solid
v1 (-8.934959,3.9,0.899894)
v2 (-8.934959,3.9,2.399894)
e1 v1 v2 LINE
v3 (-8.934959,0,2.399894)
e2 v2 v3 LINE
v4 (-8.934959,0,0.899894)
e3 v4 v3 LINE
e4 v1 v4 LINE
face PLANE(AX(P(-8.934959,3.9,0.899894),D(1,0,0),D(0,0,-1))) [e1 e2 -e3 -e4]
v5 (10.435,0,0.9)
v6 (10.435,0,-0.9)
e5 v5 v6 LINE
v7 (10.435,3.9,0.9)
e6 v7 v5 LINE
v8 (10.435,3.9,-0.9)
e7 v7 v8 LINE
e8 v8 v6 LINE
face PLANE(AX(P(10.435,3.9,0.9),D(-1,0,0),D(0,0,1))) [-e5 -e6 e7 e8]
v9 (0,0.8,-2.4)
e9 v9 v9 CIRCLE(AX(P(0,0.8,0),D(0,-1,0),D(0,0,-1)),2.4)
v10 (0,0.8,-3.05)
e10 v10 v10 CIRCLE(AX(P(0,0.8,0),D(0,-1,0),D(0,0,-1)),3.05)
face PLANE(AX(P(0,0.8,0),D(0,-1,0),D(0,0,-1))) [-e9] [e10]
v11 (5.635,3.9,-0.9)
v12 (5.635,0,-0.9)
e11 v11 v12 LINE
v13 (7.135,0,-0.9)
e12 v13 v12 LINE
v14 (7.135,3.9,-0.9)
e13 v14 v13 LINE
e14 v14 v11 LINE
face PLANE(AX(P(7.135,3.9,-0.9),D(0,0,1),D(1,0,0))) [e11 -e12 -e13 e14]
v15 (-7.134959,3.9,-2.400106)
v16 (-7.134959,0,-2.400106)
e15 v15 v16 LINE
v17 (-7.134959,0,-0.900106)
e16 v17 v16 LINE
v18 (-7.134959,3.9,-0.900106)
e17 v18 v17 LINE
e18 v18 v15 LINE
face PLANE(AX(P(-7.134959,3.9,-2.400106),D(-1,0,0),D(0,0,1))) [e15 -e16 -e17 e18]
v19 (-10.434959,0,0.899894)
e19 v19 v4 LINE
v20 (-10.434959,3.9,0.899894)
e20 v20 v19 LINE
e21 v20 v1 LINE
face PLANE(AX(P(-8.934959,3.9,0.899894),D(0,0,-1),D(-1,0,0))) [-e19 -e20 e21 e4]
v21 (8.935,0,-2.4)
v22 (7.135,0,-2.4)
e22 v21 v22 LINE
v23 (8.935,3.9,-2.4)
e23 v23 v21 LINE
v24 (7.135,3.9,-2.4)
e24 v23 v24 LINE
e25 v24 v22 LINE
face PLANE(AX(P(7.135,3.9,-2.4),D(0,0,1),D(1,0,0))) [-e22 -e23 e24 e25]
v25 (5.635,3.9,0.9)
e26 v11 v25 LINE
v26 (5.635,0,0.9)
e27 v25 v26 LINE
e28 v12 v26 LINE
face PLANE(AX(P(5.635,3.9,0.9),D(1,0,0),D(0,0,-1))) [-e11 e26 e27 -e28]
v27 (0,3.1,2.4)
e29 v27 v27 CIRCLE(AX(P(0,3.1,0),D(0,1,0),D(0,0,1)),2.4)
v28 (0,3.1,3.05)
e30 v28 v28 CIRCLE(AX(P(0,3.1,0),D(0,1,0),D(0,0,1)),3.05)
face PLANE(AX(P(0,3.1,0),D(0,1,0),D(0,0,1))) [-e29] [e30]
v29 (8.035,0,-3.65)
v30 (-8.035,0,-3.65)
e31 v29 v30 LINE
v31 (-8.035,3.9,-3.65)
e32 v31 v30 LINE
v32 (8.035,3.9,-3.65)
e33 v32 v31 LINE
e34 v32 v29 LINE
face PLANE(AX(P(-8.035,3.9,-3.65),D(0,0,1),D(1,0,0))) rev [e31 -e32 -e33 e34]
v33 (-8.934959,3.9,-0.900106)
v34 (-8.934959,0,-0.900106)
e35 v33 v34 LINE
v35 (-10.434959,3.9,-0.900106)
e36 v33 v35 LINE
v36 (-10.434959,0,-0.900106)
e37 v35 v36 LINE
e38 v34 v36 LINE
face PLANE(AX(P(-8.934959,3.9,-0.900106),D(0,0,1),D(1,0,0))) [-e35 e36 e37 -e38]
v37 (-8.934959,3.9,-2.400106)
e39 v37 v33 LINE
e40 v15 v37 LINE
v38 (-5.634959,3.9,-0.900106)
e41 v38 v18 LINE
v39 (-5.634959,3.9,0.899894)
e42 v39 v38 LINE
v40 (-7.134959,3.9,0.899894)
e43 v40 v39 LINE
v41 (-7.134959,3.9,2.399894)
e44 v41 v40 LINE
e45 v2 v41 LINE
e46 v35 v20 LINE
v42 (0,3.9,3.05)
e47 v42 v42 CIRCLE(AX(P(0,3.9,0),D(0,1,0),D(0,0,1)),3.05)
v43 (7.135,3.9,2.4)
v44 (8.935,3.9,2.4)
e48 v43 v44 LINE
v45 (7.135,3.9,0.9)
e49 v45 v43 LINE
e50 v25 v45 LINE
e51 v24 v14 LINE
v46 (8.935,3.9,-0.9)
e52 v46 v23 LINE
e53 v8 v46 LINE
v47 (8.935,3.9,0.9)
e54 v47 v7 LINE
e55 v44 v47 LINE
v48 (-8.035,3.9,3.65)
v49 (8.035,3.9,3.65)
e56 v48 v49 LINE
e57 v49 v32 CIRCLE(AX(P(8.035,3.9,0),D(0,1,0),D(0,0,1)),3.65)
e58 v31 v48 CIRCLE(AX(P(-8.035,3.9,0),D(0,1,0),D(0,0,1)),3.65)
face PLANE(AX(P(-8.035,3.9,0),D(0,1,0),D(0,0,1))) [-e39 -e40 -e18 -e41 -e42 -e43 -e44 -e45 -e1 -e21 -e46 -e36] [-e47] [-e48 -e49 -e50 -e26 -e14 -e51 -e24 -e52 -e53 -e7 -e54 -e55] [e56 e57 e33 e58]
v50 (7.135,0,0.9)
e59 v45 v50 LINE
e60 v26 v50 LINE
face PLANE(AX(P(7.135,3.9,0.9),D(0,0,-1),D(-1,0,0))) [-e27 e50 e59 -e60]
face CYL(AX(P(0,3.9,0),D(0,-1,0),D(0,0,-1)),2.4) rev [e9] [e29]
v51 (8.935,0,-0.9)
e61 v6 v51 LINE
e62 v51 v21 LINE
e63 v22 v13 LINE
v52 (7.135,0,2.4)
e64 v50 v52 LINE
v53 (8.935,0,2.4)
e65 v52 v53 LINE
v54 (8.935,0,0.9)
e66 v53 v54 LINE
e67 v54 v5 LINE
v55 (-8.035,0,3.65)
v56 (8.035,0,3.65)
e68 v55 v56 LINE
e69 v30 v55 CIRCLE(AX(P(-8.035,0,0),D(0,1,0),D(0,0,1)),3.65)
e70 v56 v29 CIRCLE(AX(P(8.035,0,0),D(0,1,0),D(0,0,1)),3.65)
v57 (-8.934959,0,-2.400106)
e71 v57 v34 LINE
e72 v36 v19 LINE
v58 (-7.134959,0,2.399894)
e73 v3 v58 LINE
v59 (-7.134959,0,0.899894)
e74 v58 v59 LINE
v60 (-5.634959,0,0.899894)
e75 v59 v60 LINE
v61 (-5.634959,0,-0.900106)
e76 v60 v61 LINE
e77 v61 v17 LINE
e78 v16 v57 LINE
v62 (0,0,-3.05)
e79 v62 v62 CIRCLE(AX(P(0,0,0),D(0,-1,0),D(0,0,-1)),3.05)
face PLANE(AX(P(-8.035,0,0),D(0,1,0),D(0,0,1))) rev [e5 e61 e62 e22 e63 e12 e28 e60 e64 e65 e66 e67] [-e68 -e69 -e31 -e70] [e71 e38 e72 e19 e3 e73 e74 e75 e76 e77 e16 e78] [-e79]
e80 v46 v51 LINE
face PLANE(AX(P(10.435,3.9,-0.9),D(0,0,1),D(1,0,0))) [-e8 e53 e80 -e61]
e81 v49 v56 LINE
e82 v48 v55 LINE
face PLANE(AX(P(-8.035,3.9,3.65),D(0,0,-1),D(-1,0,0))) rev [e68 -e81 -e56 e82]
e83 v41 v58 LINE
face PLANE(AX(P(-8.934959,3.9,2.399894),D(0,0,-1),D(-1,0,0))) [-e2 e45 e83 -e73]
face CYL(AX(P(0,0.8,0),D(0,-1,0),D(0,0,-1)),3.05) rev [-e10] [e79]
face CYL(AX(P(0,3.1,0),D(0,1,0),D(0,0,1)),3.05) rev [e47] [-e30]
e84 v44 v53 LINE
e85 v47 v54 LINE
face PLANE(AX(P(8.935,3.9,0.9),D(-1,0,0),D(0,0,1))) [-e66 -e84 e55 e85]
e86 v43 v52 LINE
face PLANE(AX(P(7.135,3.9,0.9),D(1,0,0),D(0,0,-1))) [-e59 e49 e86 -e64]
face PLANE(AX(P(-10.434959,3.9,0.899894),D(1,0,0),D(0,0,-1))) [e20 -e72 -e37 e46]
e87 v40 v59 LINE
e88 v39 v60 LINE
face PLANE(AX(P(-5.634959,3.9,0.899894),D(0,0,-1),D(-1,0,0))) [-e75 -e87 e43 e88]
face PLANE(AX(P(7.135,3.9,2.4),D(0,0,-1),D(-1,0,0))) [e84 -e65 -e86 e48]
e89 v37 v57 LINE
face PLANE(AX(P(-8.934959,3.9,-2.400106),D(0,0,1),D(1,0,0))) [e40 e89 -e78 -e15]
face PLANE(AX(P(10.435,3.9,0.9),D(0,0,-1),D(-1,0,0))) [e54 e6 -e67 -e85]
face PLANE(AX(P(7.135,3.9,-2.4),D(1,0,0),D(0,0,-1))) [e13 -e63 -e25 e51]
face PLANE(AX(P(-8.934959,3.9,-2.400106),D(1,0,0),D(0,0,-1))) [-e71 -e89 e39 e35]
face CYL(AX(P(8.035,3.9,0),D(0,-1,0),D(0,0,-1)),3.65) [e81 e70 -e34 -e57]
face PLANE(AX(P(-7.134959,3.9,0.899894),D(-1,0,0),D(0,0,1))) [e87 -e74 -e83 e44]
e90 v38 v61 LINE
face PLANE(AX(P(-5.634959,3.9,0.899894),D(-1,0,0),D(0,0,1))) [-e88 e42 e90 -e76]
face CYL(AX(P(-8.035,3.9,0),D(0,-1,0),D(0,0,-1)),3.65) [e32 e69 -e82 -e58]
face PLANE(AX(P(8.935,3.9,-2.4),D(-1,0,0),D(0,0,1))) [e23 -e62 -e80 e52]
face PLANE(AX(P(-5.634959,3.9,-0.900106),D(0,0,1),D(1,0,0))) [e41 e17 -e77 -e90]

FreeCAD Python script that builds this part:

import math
import FreeCAD as App
import Part
import Sketcher
from FreeCAD import Vector

doc = App.newDocument("Part")
body = doc.addObject("PartDesign::Body", "Body")

# Sketch on XZ plane
sketch1 = body.newObject("Sketcher::SketchObject", "Sketch")
sketch1.AttachmentSupport = (doc.getObject("XZ_Plane"), [""])
sketch1.MapMode = "FlatFace"
sketch1.addGeometry([
    Part.LineSegment(Vector(8, -3.6, 0), Vector(-8, -3.6, 0)),  # 0
    Part.ArcOfCircle(Part.Circle(Vector(-8, 0, 0), Vector(0, 0, 1), 3.6), math.radians(90), math.radians(270)),  # 1
    Part.LineSegment(Vector(-8, 3.6, 0), Vector(8, 3.6, 0)),  # 2
    Part.ArcOfCircle(Part.Circle(Vector(8, 0, 0), Vector(0, 0, 1), 3.6), math.radians(-90), math.radians(90)),  # 3
    Part.LineSegment(Vector(7.1, -2.4, 0), Vector(8.9, -2.4, 0)),  # 4
    Part.LineSegment(Vector(8.9, -2.4, 0), Vector(8.9, -0.9, 0)),  # 5
    Part.LineSegment(Vector(8.9, -0.9, 0), Vector(10.4, -0.9, 0)),  # 6
    Part.LineSegment(Vector(10.4, -0.9, 0), Vector(10.4, 0.9, 0)),  # 7
    Part.LineSegment(Vector(10.4, 0.9, 0), Vector(8.9, 0.9, 0)),  # 8
    Part.LineSegment(Vector(8.9, 0.9, 0), Vector(8.9, 2.4, 0)),  # 9
    Part.LineSegment(Vector(8.9, 2.4, 0), Vector(7.1, 2.4, 0)),  # 10
    Part.LineSegment(Vector(7.1, 2.4, 0), Vector(7.1, 0.9, 0)),  # 11
    Part.LineSegment(Vector(7.1, 0.9, 0), Vector(5.6, 0.9, 0)),  # 12
    Part.LineSegment(Vector(5.6, 0.9, 0), Vector(5.6, -0.9, 0)),  # 13
    Part.LineSegment(Vector(5.6, -0.9, 0), Vector(7.1, -0.9, 0)),  # 14
    Part.LineSegment(Vector(7.1, -0.9, 0), Vector(7.1, -2.4, 0)),  # 15
    Part.Circle(Vector(0, 0, 0), Vector(0, 0, 1), 2.4),  # 16
    Part.LineSegment(Vector(-8.9, -2.4, 0), Vector(-7.1, -2.4, 0)),  # 17
    Part.LineSegment(Vector(-7.1, -2.4, 0), Vector(-7.1, -0.9, 0)),  # 18
    Part.LineSegment(Vector(-7.1, -0.9, 0), Vector(-5.6, -0.9, 0)),  # 19
    Part.LineSegment(Vector(-5.6, -0.9, 0), Vector(-5.6, 0.9, 0)),  # 20
    Part.LineSegment(Vector(-5.6, 0.9, 0), Vector(-7.1, 0.9, 0)),  # 21
    Part.LineSegment(Vector(-7.1, 0.9, 0), Vector(-7.1, 2.4, 0)),  # 22
    Part.LineSegment(Vector(-7.1, 2.4, 0), Vector(-8.9, 2.4, 0)),  # 23
    Part.LineSegment(Vector(-8.9, 2.4, 0), Vector(-8.9, 0.9, 0)),  # 24
    Part.LineSegment(Vector(-8.9, 0.9, 0), Vector(-10.4, 0.9, 0)),  # 25
    Part.LineSegment(Vector(-10.4, 0.9, 0), Vector(-10.4, -0.9, 0)),  # 26
    Part.LineSegment(Vector(-10.4, -0.9, 0), Vector(-8.9, -0.9, 0)),  # 27
    Part.LineSegment(Vector(-8.9, -0.9, 0), Vector(-8.9, -2.4, 0)),  # 28
], False)
sketch1.addConstraint([
    Sketcher.Constraint("Tangent", 0, 2, 1, 2),
    Sketcher.Constraint("Tangent", 1, 1, 2, 1),
    Sketcher.Constraint("Tangent", 2, 2, 3, 2),
    Sketcher.Constraint("Tangent", 3, 1, 0, 1),
    Sketcher.Constraint("Coincident", 4, 2, 5, 1),
    Sketcher.Constraint("Coincident", 5, 2, 6, 1),
    Sketcher.Constraint("Coincident", 6, 2, 7, 1),
    Sketcher.Constraint("Coincident", 7, 2, 8, 1),
    Sketcher.Constraint("Coincident", 8, 2, 9, 1),
    Sketcher.Constraint("Coincident", 9, 2, 10, 1),
    Sketcher.Constraint("Coincident", 10, 2, 11, 1),
    Sketcher.Constraint("Coincident", 11, 2, 12, 1),
    Sketcher.Constraint("Coincident", 12, 2, 13, 1),
    Sketcher.Constraint("Coincident", 13, 2, 14, 1),
    Sketcher.Constraint("Coincident", 14, 2, 15, 1),
    Sketcher.Constraint("Coincident", 15, 2, 4, 1),
    Sketcher.Constraint("Coincident", 17, 2, 18, 1),
    Sketcher.Constraint("Coincident", 18, 2, 19, 1),
    Sketcher.Constraint("Coincident", 19, 2, 20, 1),
    Sketcher.Constraint("Coincident", 20, 2, 21, 1),
    Sketcher.Constraint("Coincident", 21, 2, 22, 1),
    Sketcher.Constraint("Coincident", 22, 2, 23, 1),
    Sketcher.Constraint("Coincident", 23, 2, 24, 1),
    Sketcher.Constraint("Coincident", 24, 2, 25, 1),
    Sketcher.Constraint("Coincident", 25, 2, 26, 1),
    Sketcher.Constraint("Coincident", 26, 2, 27, 1),
    Sketcher.Constraint("Coincident", 27, 2, 28, 1),
    Sketcher.Constraint("Coincident", 28, 2, 17, 1),
    Sketcher.Constraint("Horizontal", 0),
    Sketcher.Constraint("Horizontal", 2),
    Sketcher.Constraint("Horizontal", 4),
    Sketcher.Constraint("Vertical", 5),
    Sketcher.Constraint("Horizontal", 6),
    Sketcher.Constraint("Vertical", 7),
    Sketcher.Constraint("Horizontal", 8),
    Sketcher.Constraint("Vertical", 9),
    Sketcher.Constraint("Horizontal", 10),
    Sketcher.Constraint("Vertical", 11),
    Sketcher.Constraint("Horizontal", 12),
    Sketcher.Constraint("Vertical", 13),
    Sketcher.Constraint("Horizontal", 14),
    Sketcher.Constraint("Vertical", 15),
    Sketcher.Constraint("Horizontal", 17),
    Sketcher.Constraint("Vertical", 18),
    Sketcher.Constraint("Horizontal", 19),
    Sketcher.Constraint("Vertical", 20),
    Sketcher.Constraint("Horizontal", 21),
    Sketcher.Constraint("Vertical", 22),
    Sketcher.Constraint("Horizontal", 23),
    Sketcher.Constraint("Vertical", 24),
    Sketcher.Constraint("Horizontal", 25),
    Sketcher.Constraint("Vertical", 26),
    Sketcher.Constraint("Horizontal", 27),
    Sketcher.Constraint("Vertical", 28),
    Sketcher.Constraint("Coincident", 16, 3, -1, 1),
    Sketcher.Constraint("Symmetric", 1, 3, 3, 3, -1, 1),
    Sketcher.Constraint("Symmetric", 5, 2, 8, 2, -1),
    Sketcher.Constraint("Symmetric", 11, 2, 14, 2, -1),
    Sketcher.Constraint("Horizontal", 8, 2, 11, 2),
    Sketcher.Constraint("Horizontal", 21, 2, 24, 2),
    Sketcher.Constraint("Horizontal", 19, 2, 26, 2),
    Sketcher.Constraint("Vertical", 18, 2, 21, 2),
    Sketcher.Constraint("Vertical", 24, 2, 27, 2),
    Sketcher.Constraint("Equal", 8, 12),
    Sketcher.Constraint("Equal", 10, 17),
    Sketcher.Constraint("Equal", 14, 19),
    Sketcher.Constraint("Equal", 21, 25),
    Sketcher.Constraint("Equal", 27, 5),
    Sketcher.Constraint("Equal", 23, 7),
    Sketcher.Constraint("Equal", 5, 9),
    Sketcher.Constraint("Equal", 15, 18),
    Sketcher.Constraint("Equal", 13, 20),
    Sketcher.Constraint("Equal", 18, 22),
    Sketcher.Constraint("Diameter", 16, 4.8),
    Sketcher.Constraint("Radius", 1, 3.65),
    Sketcher.Constraint("DistanceX", 4, 1, 4, 2, 1.8),
    Sketcher.Constraint("DistanceX", 6, 1, 6, 2, 1.5),
    Sketcher.Constraint("DistanceX", 0, 2, 0, 1, 16.07),
    Sketcher.Constraint("DistanceX", 3, 1, 4, 2, 0.9),
    Sketcher.Constraint("DistanceX", 17, 2, -1, 1, 7.134959),
    Sketcher.Constraint("DistanceY", 17, 2, -1, 1, 2.400106),
])
pad1 = body.newObject("PartDesign::Pad", "Pad")
pad1.Profile = sketch1
pad1.Length = 3.9
pad1.Reversed = True

# Sketch on XZ plane
sketch2 = body.newObject("Sketcher::SketchObject", "Sketch001")
sketch2.AttachmentSupport = (doc.getObject("XZ_Plane"), [""])
sketch2.MapMode = "FlatFace"
sketch2.AttachmentOffset = App.Placement(Vector(0, 0, -3.9), App.Rotation())
sketch2.addGeometry(Part.Circle(Vector(0, 0, 0), Vector(0, 0, 1), 3), False)
sketch2.addConstraint([
    Sketcher.Constraint("Coincident", 0, 3, -1, 1),
    Sketcher.Constraint("Diameter", 0, 6.1),
])
pocket1 = body.newObject("PartDesign::Pocket", "Pocket")
pocket1.Profile = sketch2
pocket1.Length = 0.8
pocket1.Reversed = True

# Sketch on XZ plane
sketch3 = body.newObject("Sketcher::SketchObject", "Sketch002")
sketch3.AttachmentSupport = (doc.getObject("XZ_Plane"), [""])
sketch3.MapMode = "FlatFace"
sketch3.addGeometry(Part.Circle(Vector(0, 0, 0), Vector(0, 0, 1), 3), False)
sketch3.addConstraint([
    Sketcher.Constraint("Coincident", 0, 3, -1, 1),
    Sketcher.Constraint("Diameter", 0, 6.1),
])
pocket2 = body.newObject("PartDesign::Pocket", "Pocket001")
pocket2.Profile = sketch3
pocket2.Length = 0.8

doc.recompute()
